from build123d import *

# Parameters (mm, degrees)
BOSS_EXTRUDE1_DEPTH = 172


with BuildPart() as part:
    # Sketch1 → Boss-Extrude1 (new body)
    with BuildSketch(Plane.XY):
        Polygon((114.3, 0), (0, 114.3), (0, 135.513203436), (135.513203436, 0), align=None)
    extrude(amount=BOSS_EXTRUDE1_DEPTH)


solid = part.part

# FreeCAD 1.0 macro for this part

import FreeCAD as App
import Part
import Sketcher

V = App.Vector
Q = App.Units.Quantity

doc = App.newDocument("Part")
body = doc.addObject("PartDesign::Body", "Body")

sketch1 = doc.addObject("Sketcher::SketchObject", "Sketch")
body.addObject(sketch1)
sketch1.AttachmentSupport = (doc.XY_Plane, [""])
sketch1.MapMode = "FlatFace"
sketch1.addGeometry([
    Part.LineSegment(V(0, 114, 0), V(114, 0, 0)),
    Part.LineSegment(V(114, 0, 0), V(136, 0, 0)),
    Part.LineSegment(V(136, 0, 0), V(0, 136, 0)),
    Part.LineSegment(V(0, 136, 0), V(0, 114, 0)),
], False)
sketch1.addConstraint([
    Sketcher.Constraint("Coincident", 0, 2, 1, 1),
    Sketcher.Constraint("Coincident", 1, 2, 2, 1),
    Sketcher.Constraint("Coincident", 2, 2, 3, 1),
    Sketcher.Constraint("Coincident", 3, 2, 0, 1),
    Sketcher.Constraint("Horizontal", 1),
    Sketcher.Constraint("Vertical", 3),
    Sketcher.Constraint("PointOnObject", 0, 2, -1),
    Sketcher.Constraint("PointOnObject", 2, 2, -2),
    Sketcher.Constraint("Parallel", 0, 2),
    Sketcher.Constraint("Equal", 1, 3),
    Sketcher.Constraint("DistanceX", -1, 1, 0, 2, Q("114.3 mm")),
    Sketcher.Constraint("Distance", 2, Q("191.64461 mm")),
])
pad1 = doc.addObject("PartDesign::Pad", "Pad")
body.addObject(pad1)
pad1.Profile = sketch1
pad1.Length = 172

doc.recompute()
